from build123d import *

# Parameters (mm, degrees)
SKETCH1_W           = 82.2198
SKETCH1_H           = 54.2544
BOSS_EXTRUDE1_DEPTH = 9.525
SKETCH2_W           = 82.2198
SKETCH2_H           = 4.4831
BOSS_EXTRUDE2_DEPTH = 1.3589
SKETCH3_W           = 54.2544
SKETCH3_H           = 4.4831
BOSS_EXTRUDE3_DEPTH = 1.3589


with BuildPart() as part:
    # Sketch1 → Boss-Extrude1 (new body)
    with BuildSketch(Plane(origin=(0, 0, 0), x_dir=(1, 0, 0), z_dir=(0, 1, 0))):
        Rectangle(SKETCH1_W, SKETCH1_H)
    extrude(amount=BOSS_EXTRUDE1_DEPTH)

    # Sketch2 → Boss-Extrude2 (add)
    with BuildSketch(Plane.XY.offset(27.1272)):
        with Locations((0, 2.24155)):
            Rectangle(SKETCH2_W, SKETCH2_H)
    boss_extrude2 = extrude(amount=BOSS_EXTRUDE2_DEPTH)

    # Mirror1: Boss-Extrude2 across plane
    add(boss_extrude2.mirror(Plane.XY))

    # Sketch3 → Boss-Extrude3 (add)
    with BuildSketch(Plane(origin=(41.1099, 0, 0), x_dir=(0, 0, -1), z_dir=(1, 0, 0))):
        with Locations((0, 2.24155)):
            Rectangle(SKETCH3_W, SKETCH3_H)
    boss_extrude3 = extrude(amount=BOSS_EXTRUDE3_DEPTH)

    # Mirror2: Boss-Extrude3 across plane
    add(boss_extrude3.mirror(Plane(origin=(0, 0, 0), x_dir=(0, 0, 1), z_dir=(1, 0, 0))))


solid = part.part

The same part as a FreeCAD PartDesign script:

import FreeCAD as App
import Part
import Sketcher

V = App.Vector
Q = App.Units.Quantity

doc = App.newDocument("Part")
body = doc.addObject("PartDesign::Body", "Body")

# Sketch on XZ plane
sketch1 = doc.addObject("Sketcher::SketchObject", "Sketch")
body.addObject(sketch1)
sketch1.AttachmentSupport = (doc.XZ_Plane, [""])
sketch1.MapMode = "FlatFace"
sketch1.addGeometry([
    Part.LineSegment(V(-41.1099, -27.1272, 0), V(-41.1099, 27.1272, 0)),
    Part.LineSegment(V(-41.1099, 27.1272, 0), V(41.1099, 27.1272, 0)),
    Part.LineSegment(V(41.1099, 27.1272, 0), V(41.1099, -27.1272, 0)),
    Part.LineSegment(V(41.1099, -27.1272, 0), V(-41.1099, -27.1272, 0)),
], False)
sketch1.addConstraint([
    Sketcher.Constraint("Coincident", 0, 2, 1, 1),
    Sketcher.Constraint("Coincident", 1, 2, 2, 1),
    Sketcher.Constraint("Coincident", 2, 2, 3, 1),
    Sketcher.Constraint("Coincident", 3, 2, 0, 1),
    Sketcher.Constraint("Vertical", 0),
    Sketcher.Constraint("Horizontal", 1),
    Sketcher.Constraint("Vertical", 2),
    Sketcher.Constraint("Horizontal", 3),
    Sketcher.Constraint("Symmetric", 0, 2, 2, 2, -1, 1),
    Sketcher.Constraint("DistanceX", 1, 1, 1, 2, Q("3.237 in")),
    Sketcher.Constraint("DistanceY", 0, 1, 0, 2, Q("2.136 in")),
])
pad1 = doc.addObject("PartDesign::Pad", "Pad")
body.addObject(pad1)
pad1.Profile = sketch1
pad1.Length = Q("0.375 in")
pad1.Reversed = True

# Sketch on XY plane
sketch2 = doc.addObject("Sketcher::SketchObject", "Sketch001")
body.addObject(sketch2)
sketch2.AttachmentSupport = (doc.XY_Plane, [""])
sketch2.MapMode = "FlatFace"
sketch2.AttachmentOffset = App.Placement(V(0, 0, 1.068 * 25.4), App.Rotation())
sketch2.addGeometry([
    Part.LineSegment(V(-41.1099, 4.4831, 0), V(-41.1099, 0, 0)),
    Part.LineSegment(V(-41.1099, 0, 0), V(41.1099, 0, 0)),
    Part.LineSegment(V(41.1099, 0, 0), V(41.1099, 4.4831, 0)),
    Part.LineSegment(V(41.1099, 4.4831, 0), V(-41.1099, 4.4831, 0)),
], False)
sketch2.addConstraint([
    Sketcher.Constraint("Coincident", 0, 2, 1, 1),
    Sketcher.Constraint("Coincident", 1, 2, 2, 1),
    Sketcher.Constraint("Coincident", 2, 2, 3, 1),
    Sketcher.Constraint("Coincident", 3, 2, 0, 1),
    Sketcher.Constraint("Vertical", 0),
    Sketcher.Constraint("Horizontal", 1),
    Sketcher.Constraint("Vertical", 2),
    Sketcher.Constraint("Horizontal", 3),
    Sketcher.Constraint("Symmetric", 0, 2, 1, 2, -1, 1),
    Sketcher.Constraint("DistanceX", 1, 1, 1, 2, Q("3.237 in")),
    Sketcher.Constraint("DistanceY", 0, 2, 0, 1, Q("0.1765 in")),
])
pad2 = doc.addObject("PartDesign::Pad", "Pad001")
body.addObject(pad2)
pad2.Profile = sketch2
pad2.Length = Q("0.0535 in")
doc.recompute()

mirrored = doc.addObject("PartDesign::Mirrored", "Mirrored")
body.addObject(mirrored)
mirrored.Originals = [pad2]
mirrored.MirrorPlane = (doc.XY_Plane, [""])
body.Tip = mirrored

# Sketch on YZ plane
sketch3 = doc.addObject("Sketcher::SketchObject", "Sketch002")
body.addObject(sketch3)
sketch3.AttachmentSupport = (doc.YZ_Plane, [""])
sketch3.MapMode = "FlatFace"
sketch3.AttachmentOffset = App.Placement(V(0, 0, 1.6185 * 25.4), App.Rotation())
sketch3.addGeometry([
    Part.LineSegment(V(4.4831, 27.1272, 0), V(0, 27.1272, 0)),
    Part.LineSegment(V(0, 27.1272, 0), V(0, -27.1272, 0)),
    Part.LineSegment(V(0, -27.1272, 0), V(4.4831, -27.1272, 0)),
    Part.LineSegment(V(4.4831, -27.1272, 0), V(4.4831, 27.1272, 0)),
], False)
sketch3.addConstraint([
    Sketcher.Constraint("Coincident", 0, 2, 1, 1),
    Sketcher.Constraint("Coincident", 1, 2, 2, 1),
    Sketcher.Constraint("Coincident", 2, 2, 3, 1),
    Sketcher.Constraint("Coincident", 3, 2, 0, 1),
    Sketcher.Constraint("Horizontal", 0),
    Sketcher.Constraint("Vertical", 1),
    Sketcher.Constraint("Horizontal", 2),
    Sketcher.Constraint("Vertical", 3),
    Sketcher.Constraint("Symmetric", 0, 2, 1, 2, -1, 1),
    Sketcher.Constraint("DistanceY", 1, 2, 1, 1, Q("2.136 in")),
    Sketcher.Constraint("DistanceX", 0, 2, 0, 1, Q("0.1765 in")),
])
pad3 = doc.addObject("PartDesign::Pad", "Pad002")
body.addObject(pad3)
pad3.Profile = sketch3
pad3.Length = Q("0.0535 in")
doc.recompute()

mirrored2 = doc.addObject("PartDesign::Mirrored", "Mirrored001")
body.addObject(mirrored2)
mirrored2.Originals = [pad3]
mirrored2.MirrorPlane = (doc.YZ_Plane, [""])
body.Tip = mirrored2

doc.recompute()
